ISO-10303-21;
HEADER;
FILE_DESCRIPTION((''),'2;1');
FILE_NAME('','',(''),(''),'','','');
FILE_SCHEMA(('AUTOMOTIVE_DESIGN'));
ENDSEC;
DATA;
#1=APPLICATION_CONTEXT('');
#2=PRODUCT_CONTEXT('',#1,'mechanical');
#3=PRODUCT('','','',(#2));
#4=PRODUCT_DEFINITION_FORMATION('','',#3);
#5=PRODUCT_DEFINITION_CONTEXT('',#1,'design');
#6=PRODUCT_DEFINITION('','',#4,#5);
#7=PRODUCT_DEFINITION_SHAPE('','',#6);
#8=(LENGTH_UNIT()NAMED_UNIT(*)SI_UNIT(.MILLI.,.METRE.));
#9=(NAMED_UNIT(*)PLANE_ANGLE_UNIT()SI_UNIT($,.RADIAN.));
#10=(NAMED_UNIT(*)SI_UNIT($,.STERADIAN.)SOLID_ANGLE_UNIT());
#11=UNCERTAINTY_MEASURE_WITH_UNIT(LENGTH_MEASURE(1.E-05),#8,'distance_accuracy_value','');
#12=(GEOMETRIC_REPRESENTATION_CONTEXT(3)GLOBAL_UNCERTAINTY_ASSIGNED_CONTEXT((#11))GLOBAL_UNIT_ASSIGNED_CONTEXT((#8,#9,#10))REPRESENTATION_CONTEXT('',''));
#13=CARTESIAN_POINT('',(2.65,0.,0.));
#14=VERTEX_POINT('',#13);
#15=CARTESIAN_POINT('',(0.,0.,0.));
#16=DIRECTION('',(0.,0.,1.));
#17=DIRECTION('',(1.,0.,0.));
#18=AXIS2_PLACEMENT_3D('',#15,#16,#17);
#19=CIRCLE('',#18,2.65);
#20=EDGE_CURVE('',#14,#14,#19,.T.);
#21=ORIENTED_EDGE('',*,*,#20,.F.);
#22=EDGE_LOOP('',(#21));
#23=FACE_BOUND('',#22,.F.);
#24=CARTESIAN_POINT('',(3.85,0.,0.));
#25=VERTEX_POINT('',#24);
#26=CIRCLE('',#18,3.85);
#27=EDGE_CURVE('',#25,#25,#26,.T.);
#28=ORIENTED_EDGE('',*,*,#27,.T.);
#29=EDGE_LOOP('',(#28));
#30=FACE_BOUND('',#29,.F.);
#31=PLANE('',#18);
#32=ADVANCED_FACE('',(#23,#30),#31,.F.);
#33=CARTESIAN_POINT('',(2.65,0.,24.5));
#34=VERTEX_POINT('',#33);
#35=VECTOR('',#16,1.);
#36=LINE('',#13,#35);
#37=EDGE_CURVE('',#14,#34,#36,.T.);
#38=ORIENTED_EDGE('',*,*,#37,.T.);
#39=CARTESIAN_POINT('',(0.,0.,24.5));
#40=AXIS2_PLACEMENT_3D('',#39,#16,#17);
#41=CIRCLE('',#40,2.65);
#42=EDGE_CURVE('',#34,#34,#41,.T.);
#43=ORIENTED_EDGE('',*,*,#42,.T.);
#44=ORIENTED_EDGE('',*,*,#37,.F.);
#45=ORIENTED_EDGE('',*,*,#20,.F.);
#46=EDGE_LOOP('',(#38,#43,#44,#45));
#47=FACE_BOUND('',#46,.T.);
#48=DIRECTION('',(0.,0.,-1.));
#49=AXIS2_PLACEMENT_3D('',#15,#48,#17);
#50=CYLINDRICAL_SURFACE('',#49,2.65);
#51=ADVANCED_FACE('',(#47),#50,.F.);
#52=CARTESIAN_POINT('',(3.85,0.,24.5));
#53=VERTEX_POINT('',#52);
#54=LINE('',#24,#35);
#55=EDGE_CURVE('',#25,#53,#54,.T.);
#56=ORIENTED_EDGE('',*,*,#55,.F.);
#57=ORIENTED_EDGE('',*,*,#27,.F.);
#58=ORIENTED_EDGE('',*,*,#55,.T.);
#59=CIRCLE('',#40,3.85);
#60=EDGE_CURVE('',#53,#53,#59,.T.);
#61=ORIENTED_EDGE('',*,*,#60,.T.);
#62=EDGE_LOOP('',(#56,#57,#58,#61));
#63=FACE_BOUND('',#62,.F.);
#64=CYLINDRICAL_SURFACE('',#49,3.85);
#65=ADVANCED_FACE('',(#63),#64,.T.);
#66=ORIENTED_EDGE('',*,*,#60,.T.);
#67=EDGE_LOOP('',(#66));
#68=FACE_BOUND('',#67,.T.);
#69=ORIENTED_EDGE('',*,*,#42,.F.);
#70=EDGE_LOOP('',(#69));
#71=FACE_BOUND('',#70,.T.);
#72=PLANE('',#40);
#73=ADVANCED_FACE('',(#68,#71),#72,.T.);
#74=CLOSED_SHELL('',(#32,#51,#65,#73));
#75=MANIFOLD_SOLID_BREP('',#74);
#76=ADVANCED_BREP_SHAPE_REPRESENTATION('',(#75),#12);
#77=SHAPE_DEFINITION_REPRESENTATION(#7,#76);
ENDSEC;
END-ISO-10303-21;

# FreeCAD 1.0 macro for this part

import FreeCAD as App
import Part
import Sketcher

V = App.Vector
Q = App.Units.Quantity

doc = App.newDocument("Part")
body = doc.addObject("PartDesign::Body", "Body")

# Sketch on XY plane
sketch1 = doc.addObject("Sketcher::SketchObject", "Sketch")
body.addObject(sketch1)
sketch1.AttachmentSupport = (doc.XY_Plane, [""])
sketch1.MapMode = "FlatFace"
sketch1.addGeometry([
    Part.Circle(V(0, 0, 0), V(0, 0, 1), 3.9),
    Part.Circle(V(0, 0, 0), V(0, 0, 1), 2.6),
], False)
sketch1.addConstraint([
    Sketcher.Constraint("Coincident", 0, 3, -1, 1),
    Sketcher.Constraint("Coincident", 1, 3, -1, 1),
    Sketcher.Constraint("Diameter", 0, Q("7.7 mm")),
    Sketcher.Constraint("Diameter", 1, Q("5.3 mm")),
])
pad1 = doc.addObject("PartDesign::Pad", "Pad")
body.addObject(pad1)
pad1.Profile = sketch1
pad1.Length = 24.5

doc.recompute()
